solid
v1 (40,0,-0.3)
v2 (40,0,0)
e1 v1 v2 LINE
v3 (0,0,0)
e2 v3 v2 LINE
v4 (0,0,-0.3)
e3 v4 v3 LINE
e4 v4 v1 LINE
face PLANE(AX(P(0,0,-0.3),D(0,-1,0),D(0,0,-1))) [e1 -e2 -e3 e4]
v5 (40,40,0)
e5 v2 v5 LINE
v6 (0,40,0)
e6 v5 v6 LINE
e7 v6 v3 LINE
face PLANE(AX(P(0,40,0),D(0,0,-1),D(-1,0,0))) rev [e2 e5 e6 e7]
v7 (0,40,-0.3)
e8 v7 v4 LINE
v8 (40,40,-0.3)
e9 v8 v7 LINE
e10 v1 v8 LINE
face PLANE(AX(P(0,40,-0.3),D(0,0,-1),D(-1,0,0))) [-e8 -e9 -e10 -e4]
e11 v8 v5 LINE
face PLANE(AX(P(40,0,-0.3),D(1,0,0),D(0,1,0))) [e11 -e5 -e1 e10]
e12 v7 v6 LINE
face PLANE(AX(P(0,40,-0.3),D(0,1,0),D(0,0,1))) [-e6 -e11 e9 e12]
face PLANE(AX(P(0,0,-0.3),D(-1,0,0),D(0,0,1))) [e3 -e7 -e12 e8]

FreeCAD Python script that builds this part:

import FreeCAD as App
import Part
import Sketcher
from FreeCAD import Vector

doc = App.newDocument("Part")
body = doc.addObject("PartDesign::Body", "Body")

# Sketch on XY plane
sketch1 = body.newObject("Sketcher::SketchObject", "Sketch")
sketch1.AttachmentSupport = (doc.getObject("XY_Plane"), [""])
sketch1.MapMode = "FlatFace"
sketch1.addGeometry([
    Part.LineSegment(Vector(0, 40, 0), Vector(0, 0, 0)),
    Part.LineSegment(Vector(0, 0, 0), Vector(40, 0, 0)),
    Part.LineSegment(Vector(40, 0, 0), Vector(40, 40, 0)),
    Part.LineSegment(Vector(40, 40, 0), Vector(0, 40, 0)),
], False)
sketch1.addConstraint([
    Sketcher.Constraint("Coincident", 0, 2, 1, 1),
    Sketcher.Constraint("Coincident", 1, 2, 2, 1),
    Sketcher.Constraint("Coincident", 2, 2, 3, 1),
    Sketcher.Constraint("Coincident", 3, 2, 0, 1),
    Sketcher.Constraint("Vertical", 0),
    Sketcher.Constraint("Horizontal", 1),
    Sketcher.Constraint("Vertical", 2),
    Sketcher.Constraint("Horizontal", 3),
    Sketcher.Constraint("Coincident", 0, 2, -1, 1),
    Sketcher.Constraint("Equal", 3, 0),
    Sketcher.Constraint("DistanceX", 1, 1, 1, 2, 40.0),
])
pad1 = body.newObject("PartDesign::Pad", "Pad")
pad1.Profile = sketch1
pad1.Length = 0.3
pad1.Reversed = True

doc.recompute()
